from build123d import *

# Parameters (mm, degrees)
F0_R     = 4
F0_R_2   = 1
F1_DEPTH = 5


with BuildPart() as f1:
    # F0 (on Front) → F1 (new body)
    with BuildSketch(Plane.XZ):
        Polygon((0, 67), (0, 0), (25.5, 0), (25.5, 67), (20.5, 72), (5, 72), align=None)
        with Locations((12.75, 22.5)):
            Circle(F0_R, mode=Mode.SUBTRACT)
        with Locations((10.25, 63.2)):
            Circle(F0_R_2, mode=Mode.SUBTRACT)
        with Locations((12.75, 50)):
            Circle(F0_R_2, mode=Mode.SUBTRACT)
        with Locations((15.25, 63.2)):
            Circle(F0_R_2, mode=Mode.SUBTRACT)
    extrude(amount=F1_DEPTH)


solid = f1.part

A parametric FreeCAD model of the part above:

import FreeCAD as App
import Part
import Sketcher

doc = App.newDocument("Part")
body = doc.addObject("PartDesign::Body", "Body")

# Sketch on XZ plane
sketch1 = doc.addObject("Sketcher::SketchObject", "Sketch")
body.addObject(sketch1)
sketch1.AttachmentSupport = (doc.XZ_Plane, [""])
sketch1.MapMode = "FlatFace"
sketch1.addGeometry([
    Part.LineSegment(App.Vector(0, 67, 0), App.Vector(0, 0, 0)),  # 0
    Part.LineSegment(App.Vector(0, 0, 0), App.Vector(25.5, 0, 0)),  # 1
    Part.LineSegment(App.Vector(25.5, 0, 0), App.Vector(25.5, 67, 0)),  # 2
    Part.LineSegment(App.Vector(25.5, 67, 0), App.Vector(20.5, 72, 0)),  # 3
    Part.LineSegment(App.Vector(20.5, 72, 0), App.Vector(5, 72, 0)),  # 4
    Part.LineSegment(App.Vector(5, 72, 0), App.Vector(0, 67, 0)),  # 5
    Part.Circle(App.Vector(12.8, 22.5, 0), App.Vector(0, 0, 1), 4),  # 6
    Part.Circle(App.Vector(10.2, 63.2, 0), App.Vector(0, 0, 1), 1),  # 7
    Part.Circle(App.Vector(12.8, 50, 0), App.Vector(0, 0, 1), 1),  # 8
    Part.Circle(App.Vector(15.2, 63.2, 0), App.Vector(0, 0, 1), 1),  # 9
], False)
sketch1.addConstraint([
    Sketcher.Constraint("Coincident", 0, 2, 1, 1),
    Sketcher.Constraint("Coincident", 1, 2, 2, 1),
    Sketcher.Constraint("Coincident", 2, 2, 3, 1),
    Sketcher.Constraint("Coincident", 3, 2, 4, 1),
    Sketcher.Constraint("Coincident", 4, 2, 5, 1),
    Sketcher.Constraint("Coincident", 5, 2, 0, 1),
    Sketcher.Constraint("Vertical", 0),
    Sketcher.Constraint("Horizontal", 1),
    Sketcher.Constraint("Vertical", 2),
    Sketcher.Constraint("Horizontal", 4),
    Sketcher.Constraint("Coincident", 0, 2, -1, 1),
    Sketcher.Constraint("Equal", 7, 8),
    Sketcher.Constraint("Equal", 8, 9),
    Sketcher.Constraint("Perpendicular", 3, 5),
    Sketcher.Constraint("Horizontal", 7, 3, 9, 3),
    Sketcher.Constraint("Horizontal", 2, 2, 5, 2),
    Sketcher.Constraint("Vertical", 6, 3, 8, 3),
    Sketcher.Constraint("Equal", 3, 5),
    Sketcher.Constraint("Diameter", 6, 8.0),
    Sketcher.Constraint("Diameter", 7, 2.0),
    Sketcher.Constraint("DistanceY", 0, 2, 0, 1, 67.0),
    Sketcher.Constraint("DistanceX", 1, 1, 1, 2, 25.5),
    Sketcher.Constraint("DistanceX", 4, 2, 4, 1, 15.5),
    Sketcher.Constraint("DistanceY", -1, 1, 8, 3, 50.0),
    Sketcher.Constraint("DistanceX", 7, 3, 9, 3, 5.0),
    Sketcher.Constraint("DistanceY", -1, 1, 6, 3, 22.5),
    Sketcher.Constraint("DistanceY", -1, 1, 7, 3, 63.2),
    Sketcher.Constraint("DistanceX", 7, 3, 6, 3, 2.5),
    Sketcher.Constraint("DistanceX", -1, 1, 6, 3, 12.75),
])
pad1 = doc.addObject("PartDesign::Pad", "Pad")
body.addObject(pad1)
pad1.Profile = sketch1
pad1.Length = 5

doc.recompute()
